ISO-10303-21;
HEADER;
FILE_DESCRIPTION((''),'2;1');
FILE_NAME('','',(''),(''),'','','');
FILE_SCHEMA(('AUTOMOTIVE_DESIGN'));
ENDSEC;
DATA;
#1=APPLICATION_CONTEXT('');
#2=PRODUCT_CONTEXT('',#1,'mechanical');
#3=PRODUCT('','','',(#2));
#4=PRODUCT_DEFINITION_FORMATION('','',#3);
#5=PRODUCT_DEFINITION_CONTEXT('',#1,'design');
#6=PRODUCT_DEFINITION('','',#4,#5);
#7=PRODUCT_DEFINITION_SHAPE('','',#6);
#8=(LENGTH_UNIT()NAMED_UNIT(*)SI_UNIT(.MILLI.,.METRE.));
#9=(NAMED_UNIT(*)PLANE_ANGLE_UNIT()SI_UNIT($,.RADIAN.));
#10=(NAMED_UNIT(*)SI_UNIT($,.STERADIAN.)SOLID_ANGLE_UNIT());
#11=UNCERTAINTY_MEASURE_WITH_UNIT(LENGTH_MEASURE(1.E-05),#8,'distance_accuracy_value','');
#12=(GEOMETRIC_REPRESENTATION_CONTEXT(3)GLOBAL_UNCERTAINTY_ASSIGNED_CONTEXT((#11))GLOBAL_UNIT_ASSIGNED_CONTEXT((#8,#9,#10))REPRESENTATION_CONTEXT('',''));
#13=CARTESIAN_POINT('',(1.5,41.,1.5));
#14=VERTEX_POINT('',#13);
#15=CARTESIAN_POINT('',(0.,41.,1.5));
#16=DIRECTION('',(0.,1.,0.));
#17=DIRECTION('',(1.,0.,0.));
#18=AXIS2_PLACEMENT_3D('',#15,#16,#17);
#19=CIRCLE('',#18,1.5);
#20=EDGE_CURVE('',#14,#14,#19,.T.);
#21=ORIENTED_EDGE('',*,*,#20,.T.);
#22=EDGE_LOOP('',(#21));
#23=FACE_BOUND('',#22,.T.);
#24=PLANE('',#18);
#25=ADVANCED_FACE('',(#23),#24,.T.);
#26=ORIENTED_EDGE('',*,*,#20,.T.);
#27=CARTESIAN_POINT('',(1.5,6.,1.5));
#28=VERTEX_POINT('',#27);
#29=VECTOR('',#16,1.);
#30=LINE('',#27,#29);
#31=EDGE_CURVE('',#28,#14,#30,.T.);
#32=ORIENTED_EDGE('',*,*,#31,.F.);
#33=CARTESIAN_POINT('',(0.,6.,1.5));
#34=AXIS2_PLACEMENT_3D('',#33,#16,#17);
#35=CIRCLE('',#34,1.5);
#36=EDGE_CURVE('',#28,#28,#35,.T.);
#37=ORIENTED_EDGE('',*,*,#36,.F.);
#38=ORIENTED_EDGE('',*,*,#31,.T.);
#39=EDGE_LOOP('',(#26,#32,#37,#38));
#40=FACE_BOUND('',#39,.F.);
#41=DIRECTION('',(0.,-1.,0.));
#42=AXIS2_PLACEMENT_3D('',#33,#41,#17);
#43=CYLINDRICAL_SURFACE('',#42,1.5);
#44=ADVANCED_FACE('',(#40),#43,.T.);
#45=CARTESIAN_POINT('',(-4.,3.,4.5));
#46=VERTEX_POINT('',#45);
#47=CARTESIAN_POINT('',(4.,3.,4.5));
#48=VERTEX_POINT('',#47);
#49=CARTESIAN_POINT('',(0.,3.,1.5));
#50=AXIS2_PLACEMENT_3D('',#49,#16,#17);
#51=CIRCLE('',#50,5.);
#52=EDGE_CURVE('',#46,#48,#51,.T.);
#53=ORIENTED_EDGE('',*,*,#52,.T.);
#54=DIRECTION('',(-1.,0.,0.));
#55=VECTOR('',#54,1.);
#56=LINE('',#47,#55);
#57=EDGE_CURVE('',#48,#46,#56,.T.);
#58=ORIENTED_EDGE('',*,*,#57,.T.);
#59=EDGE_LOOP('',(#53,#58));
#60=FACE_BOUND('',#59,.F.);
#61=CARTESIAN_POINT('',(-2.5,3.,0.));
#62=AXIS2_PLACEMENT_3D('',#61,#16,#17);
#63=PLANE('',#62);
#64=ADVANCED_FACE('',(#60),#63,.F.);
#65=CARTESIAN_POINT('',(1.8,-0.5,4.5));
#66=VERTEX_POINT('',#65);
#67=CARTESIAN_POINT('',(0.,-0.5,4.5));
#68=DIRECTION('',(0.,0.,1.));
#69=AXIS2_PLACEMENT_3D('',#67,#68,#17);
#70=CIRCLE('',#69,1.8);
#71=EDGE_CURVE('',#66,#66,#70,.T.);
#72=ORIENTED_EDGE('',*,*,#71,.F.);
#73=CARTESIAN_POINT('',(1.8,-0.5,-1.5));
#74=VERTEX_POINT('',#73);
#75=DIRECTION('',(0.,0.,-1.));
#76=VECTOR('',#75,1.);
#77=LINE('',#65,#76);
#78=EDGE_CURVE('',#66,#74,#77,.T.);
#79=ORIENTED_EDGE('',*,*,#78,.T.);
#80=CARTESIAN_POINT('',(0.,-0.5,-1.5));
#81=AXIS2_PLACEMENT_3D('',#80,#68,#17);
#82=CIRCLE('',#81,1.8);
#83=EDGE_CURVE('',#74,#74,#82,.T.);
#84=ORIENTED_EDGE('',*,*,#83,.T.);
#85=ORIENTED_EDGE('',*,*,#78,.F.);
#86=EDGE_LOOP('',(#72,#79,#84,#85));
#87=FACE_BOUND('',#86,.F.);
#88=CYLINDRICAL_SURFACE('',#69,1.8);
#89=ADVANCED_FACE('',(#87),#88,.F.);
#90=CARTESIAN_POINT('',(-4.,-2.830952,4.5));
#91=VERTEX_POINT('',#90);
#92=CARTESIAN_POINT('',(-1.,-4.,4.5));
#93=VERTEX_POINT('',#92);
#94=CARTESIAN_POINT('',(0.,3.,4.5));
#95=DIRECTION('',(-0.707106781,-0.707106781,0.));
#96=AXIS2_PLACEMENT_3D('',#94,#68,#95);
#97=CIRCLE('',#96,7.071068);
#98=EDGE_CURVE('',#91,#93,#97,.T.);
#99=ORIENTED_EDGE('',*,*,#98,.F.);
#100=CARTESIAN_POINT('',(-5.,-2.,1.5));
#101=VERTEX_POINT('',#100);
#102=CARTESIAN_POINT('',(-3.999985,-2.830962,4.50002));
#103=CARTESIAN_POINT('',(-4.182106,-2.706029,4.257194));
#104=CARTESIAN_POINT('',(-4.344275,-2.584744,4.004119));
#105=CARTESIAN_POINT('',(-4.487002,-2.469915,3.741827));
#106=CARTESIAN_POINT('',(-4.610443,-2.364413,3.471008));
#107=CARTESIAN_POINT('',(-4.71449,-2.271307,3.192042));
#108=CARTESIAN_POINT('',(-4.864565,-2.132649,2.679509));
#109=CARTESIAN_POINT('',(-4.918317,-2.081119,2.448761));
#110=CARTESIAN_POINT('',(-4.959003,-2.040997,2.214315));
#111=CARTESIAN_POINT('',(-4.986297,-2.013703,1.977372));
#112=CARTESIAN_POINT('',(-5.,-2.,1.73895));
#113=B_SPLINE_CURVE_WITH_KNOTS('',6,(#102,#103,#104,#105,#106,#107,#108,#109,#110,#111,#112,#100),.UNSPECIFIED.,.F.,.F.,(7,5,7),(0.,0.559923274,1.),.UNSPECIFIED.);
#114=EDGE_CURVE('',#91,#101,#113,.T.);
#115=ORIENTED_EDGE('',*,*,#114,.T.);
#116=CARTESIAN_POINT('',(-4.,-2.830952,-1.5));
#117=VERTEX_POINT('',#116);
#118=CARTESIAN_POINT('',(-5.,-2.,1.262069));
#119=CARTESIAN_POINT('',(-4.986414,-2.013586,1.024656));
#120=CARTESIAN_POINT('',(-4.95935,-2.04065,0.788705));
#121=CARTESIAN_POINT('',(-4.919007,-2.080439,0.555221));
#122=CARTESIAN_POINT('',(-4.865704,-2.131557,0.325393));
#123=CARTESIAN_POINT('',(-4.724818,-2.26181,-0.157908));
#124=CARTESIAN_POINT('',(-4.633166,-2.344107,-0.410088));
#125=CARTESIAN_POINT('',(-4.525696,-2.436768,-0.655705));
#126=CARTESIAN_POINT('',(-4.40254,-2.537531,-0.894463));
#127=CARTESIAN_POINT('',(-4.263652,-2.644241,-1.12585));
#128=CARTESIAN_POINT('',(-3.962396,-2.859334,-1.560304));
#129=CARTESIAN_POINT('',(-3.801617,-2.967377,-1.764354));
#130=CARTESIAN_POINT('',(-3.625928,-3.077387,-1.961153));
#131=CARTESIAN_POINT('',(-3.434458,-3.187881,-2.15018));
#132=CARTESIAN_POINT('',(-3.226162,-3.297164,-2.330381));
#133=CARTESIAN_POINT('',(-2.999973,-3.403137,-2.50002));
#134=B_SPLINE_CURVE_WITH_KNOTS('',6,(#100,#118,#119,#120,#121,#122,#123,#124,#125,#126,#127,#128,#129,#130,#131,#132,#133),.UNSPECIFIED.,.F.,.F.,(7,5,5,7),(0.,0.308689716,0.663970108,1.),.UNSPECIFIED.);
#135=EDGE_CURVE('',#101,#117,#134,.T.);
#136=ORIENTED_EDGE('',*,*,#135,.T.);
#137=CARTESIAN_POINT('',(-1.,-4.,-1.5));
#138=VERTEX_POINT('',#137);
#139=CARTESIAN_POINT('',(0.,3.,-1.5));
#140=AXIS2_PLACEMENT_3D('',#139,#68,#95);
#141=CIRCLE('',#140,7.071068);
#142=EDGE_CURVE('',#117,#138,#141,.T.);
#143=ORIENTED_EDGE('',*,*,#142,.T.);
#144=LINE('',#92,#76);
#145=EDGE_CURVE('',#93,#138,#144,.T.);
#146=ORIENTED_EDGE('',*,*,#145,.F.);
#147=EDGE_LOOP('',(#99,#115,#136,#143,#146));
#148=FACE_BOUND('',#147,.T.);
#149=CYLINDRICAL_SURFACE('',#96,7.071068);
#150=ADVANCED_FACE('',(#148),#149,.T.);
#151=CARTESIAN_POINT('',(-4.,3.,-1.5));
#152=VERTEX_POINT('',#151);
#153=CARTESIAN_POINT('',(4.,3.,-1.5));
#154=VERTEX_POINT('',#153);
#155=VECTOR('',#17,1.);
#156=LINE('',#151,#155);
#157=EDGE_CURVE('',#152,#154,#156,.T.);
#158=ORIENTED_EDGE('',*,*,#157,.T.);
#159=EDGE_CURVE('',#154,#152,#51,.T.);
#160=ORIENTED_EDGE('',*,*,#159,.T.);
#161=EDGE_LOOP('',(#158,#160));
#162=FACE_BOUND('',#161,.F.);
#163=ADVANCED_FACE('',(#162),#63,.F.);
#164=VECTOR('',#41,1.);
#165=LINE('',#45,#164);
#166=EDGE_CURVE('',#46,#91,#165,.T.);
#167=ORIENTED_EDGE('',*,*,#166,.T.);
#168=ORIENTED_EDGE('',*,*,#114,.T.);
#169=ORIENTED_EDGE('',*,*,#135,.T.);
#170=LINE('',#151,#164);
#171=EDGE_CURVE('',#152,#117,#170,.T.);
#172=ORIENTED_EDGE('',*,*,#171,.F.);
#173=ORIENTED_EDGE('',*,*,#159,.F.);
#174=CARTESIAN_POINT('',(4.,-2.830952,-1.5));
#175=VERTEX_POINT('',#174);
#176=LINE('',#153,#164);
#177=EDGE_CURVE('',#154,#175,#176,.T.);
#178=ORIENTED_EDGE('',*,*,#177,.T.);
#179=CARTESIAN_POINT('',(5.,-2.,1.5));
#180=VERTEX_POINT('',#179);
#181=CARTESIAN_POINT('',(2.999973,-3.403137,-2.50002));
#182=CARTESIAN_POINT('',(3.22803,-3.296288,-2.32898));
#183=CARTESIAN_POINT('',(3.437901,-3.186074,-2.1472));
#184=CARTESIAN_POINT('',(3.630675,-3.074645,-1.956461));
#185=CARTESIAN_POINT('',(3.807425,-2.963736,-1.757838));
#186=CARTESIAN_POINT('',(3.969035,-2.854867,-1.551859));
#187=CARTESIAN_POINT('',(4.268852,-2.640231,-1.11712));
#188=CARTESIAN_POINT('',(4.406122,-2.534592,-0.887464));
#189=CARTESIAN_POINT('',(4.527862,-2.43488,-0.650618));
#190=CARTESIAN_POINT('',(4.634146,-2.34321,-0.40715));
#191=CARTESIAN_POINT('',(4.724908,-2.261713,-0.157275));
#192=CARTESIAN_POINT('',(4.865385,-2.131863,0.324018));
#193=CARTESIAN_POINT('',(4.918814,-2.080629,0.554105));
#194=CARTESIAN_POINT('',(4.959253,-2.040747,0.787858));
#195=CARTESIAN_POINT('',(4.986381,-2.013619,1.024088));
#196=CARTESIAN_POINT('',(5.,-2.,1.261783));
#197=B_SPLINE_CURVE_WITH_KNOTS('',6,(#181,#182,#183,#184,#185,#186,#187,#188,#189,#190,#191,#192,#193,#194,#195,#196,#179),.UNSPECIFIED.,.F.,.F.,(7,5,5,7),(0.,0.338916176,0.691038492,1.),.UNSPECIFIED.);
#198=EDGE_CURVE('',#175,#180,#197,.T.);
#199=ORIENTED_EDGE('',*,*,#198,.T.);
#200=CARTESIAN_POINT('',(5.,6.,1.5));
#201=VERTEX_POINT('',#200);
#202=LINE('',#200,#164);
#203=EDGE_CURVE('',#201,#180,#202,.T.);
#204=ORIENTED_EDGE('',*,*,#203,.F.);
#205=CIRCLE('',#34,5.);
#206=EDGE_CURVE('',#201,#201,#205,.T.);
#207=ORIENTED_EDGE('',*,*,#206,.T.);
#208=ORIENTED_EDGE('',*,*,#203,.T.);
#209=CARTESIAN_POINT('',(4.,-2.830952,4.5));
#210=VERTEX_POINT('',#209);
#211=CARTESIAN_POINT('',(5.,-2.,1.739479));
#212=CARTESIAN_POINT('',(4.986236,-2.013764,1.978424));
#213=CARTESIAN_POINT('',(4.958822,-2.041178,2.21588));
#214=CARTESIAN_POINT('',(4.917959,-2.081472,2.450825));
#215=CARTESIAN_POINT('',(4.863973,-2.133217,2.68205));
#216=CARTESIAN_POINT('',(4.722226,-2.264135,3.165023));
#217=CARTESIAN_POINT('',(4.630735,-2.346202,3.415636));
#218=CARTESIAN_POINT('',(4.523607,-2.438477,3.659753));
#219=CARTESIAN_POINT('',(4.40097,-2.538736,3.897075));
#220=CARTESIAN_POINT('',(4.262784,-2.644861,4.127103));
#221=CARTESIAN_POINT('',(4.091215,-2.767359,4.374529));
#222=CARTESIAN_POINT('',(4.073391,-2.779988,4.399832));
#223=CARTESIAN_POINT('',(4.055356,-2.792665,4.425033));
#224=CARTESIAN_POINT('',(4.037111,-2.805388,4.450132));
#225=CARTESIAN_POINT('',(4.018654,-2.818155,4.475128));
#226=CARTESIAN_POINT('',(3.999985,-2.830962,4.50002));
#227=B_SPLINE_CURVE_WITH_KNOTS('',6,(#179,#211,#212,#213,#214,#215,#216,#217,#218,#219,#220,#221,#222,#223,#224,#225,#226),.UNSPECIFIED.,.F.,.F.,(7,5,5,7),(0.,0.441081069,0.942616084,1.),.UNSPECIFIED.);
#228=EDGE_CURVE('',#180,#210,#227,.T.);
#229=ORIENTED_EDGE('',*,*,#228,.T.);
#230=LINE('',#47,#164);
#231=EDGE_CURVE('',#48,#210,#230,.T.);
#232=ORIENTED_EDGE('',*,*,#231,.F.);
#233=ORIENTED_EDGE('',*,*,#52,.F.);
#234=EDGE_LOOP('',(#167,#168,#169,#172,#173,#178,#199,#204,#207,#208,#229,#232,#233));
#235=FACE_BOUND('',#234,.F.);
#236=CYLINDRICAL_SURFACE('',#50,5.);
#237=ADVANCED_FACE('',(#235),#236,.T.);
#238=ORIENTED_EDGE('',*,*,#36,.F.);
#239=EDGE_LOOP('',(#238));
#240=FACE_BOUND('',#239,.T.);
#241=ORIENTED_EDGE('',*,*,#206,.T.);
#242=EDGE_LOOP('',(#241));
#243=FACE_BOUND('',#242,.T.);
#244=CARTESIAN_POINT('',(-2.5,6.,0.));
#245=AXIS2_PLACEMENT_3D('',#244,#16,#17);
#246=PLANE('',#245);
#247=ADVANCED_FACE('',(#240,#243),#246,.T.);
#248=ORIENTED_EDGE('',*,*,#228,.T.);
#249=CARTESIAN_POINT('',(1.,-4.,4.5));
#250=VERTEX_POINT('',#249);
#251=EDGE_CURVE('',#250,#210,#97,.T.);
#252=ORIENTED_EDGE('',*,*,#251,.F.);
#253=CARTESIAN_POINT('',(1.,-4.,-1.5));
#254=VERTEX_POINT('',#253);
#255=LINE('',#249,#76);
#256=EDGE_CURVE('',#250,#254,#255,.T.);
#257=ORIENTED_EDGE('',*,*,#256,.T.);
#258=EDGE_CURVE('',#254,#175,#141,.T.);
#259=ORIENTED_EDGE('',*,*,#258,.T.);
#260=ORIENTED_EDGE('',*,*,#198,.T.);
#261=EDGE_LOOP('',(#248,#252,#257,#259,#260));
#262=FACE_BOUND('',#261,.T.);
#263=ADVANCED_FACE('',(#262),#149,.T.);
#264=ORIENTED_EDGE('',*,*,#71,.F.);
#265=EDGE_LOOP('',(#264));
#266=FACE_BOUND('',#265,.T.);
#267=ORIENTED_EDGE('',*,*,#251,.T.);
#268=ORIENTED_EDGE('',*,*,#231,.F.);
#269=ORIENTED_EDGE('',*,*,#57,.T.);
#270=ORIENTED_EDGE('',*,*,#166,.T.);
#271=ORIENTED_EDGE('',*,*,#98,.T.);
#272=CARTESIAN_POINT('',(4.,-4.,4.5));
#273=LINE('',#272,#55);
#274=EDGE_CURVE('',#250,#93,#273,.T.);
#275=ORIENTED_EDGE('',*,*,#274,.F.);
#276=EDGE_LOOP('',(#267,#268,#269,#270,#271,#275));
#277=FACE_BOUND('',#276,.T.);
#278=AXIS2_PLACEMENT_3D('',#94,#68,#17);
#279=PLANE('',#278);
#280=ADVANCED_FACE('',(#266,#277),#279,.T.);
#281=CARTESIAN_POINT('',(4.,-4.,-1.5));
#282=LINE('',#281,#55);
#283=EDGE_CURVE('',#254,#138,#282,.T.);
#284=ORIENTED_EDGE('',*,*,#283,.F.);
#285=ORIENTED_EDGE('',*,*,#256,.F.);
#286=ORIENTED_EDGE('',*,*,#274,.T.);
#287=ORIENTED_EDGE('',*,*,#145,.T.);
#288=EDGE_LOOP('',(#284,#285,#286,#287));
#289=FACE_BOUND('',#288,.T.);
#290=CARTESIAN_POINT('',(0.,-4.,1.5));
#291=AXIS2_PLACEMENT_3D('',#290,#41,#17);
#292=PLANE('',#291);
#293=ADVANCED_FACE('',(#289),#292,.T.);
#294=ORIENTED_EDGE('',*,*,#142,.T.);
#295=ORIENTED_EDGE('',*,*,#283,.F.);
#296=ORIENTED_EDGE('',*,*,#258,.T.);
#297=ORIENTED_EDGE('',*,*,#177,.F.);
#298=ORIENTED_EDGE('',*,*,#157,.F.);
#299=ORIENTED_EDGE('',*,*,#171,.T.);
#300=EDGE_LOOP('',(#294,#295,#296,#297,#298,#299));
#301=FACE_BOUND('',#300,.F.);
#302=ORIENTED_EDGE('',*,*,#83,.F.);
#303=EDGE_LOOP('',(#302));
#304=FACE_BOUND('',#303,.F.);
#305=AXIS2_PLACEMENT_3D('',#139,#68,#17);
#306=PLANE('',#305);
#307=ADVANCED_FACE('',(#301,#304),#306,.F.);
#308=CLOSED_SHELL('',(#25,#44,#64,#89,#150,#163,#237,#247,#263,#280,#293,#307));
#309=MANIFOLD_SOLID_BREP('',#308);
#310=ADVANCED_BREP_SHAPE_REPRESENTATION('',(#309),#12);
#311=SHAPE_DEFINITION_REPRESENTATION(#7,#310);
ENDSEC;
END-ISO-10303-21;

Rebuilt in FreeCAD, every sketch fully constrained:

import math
import FreeCAD as App
import Part
import Sketcher
Q = App.Units.Quantity

doc = App.newDocument("Part")
body = doc.addObject("PartDesign::Body", "Body")

# Sketch on XZ plane
sketch1 = body.newObject("Sketcher::SketchObject", "Sketch")
sketch1.AttachmentSupport = (doc.getObject("XZ_Plane"), [""])
sketch1.MapMode = "FlatFace"
sketch1.AttachmentOffset = App.Placement(App.Vector(0, 0, -3), App.Rotation())
sketch1.addGeometry(Part.Circle(App.Vector(0, 2, 0), App.Vector(0, 0, 1), 5), False)
sketch1.addConstraint(Sketcher.Constraint("PointOnObject", 0, 3, -2))
sketch1.addConstraint(Sketcher.Constraint("Diameter", 0, Q("10 mm")))
sketch1.addConstraint(Sketcher.Constraint("DistanceY", -1, 1, 0, 3, Q("1.5 mm")))
pad1 = body.newObject("PartDesign::Pad", "Pad")
pad1.Profile = sketch1
pad1.Length = 3
pad1.Reversed = True

# Sketch on XZ plane
sketch2 = body.newObject("Sketcher::SketchObject", "Sketch001")
sketch2.AttachmentSupport = (doc.getObject("XZ_Plane"), [""])
sketch2.MapMode = "FlatFace"
sketch2.AttachmentOffset = App.Placement(App.Vector(0, 0, -6), App.Rotation())
sketch2.addGeometry(Part.Circle(App.Vector(0, 1.5, 0), App.Vector(0, 0, 1), 1.5), False)
sketch2.addConstraint(Sketcher.Constraint("PointOnObject", 0, 3, -2))
sketch2.addConstraint(Sketcher.Constraint("Diameter", 0, Q("3 mm")))
sketch2.addConstraint(Sketcher.Constraint("DistanceY", -1, 1, 0, 3, Q("1.5 mm")))
pad2 = body.newObject("PartDesign::Pad", "Pad001")
pad2.Profile = sketch2
pad2.Length = 35
pad2.Reversed = True

# Sketch on XZ plane
sketch3 = body.newObject("Sketcher::SketchObject", "Sketch002")
sketch3.AttachmentSupport = (doc.getObject("XZ_Plane"), [""])
sketch3.MapMode = "FlatFace"
sketch3.AttachmentOffset = App.Placement(App.Vector(0, 0, -3), App.Rotation())
sketch3.addGeometry(Part.ArcOfCircle(Part.Circle(App.Vector(0, 2, 0), App.Vector(0, 0, 1), 5), math.radians(-37), math.radians(37)), False)
sketch3.addGeometry(Part.LineSegment(App.Vector(4, 4, 0), App.Vector(-4, 4, 0)), False)
sketch3.addGeometry(Part.ArcOfCircle(Part.Circle(App.Vector(0, 2, 0), App.Vector(0, 0, 1), 5), math.radians(143), math.radians(217)), False)
sketch3.addGeometry(Part.LineSegment(App.Vector(-4, -2, 0), App.Vector(4, -2, 0)), False)
sketch3.addConstraint(Sketcher.Constraint("Coincident", 0, 2, 1, 1))
sketch3.addConstraint(Sketcher.Constraint("Coincident", 1, 2, 2, 1))
sketch3.addConstraint(Sketcher.Constraint("Coincident", 2, 2, 3, 1))
sketch3.addConstraint(Sketcher.Constraint("Coincident", 3, 2, 0, 1))
sketch3.addConstraint(Sketcher.Constraint("Horizontal", 1))
sketch3.addConstraint(Sketcher.Constraint("Horizontal", 3))
sketch3.addConstraint(Sketcher.Constraint("Coincident", 2, 3, 0, 3))
sketch3.addConstraint(Sketcher.Constraint("Equal", 0, 2))
sketch3.addConstraint(Sketcher.Constraint("PointOnObject", 0, 3, -2))
sketch3.addConstraint(Sketcher.Constraint("Vertical", 1, 2, 2, 2))
sketch3.addConstraint(Sketcher.Constraint("Radius", 0, Q("5 mm")))
sketch3.addConstraint(Sketcher.Constraint("DistanceY", 0, 3, 0, 2, Q("3 mm")))
sketch3.addConstraint(Sketcher.Constraint("DistanceY", -1, 1, 0, 3, Q("1.5 mm")))
pad3 = body.newObject("PartDesign::Pad", "Pad002")
pad3.Profile = sketch3
pad3.Length = 7

# Sketch on XY plane
sketch4 = body.newObject("Sketcher::SketchObject", "Sketch003")
sketch4.AttachmentSupport = (doc.getObject("XY_Plane"), [""])
sketch4.MapMode = "FlatFace"
sketch4.AttachmentOffset = App.Placement(App.Vector(0, 0, 4.5), App.Rotation())
sketch4.addGeometry(Part.Circle(App.Vector(0, -0.5, 0), App.Vector(0, 0, 1), 1.8), False)
sketch4.addConstraint(Sketcher.Constraint("PointOnObject", 0, 3, -2))
sketch4.addConstraint(Sketcher.Constraint("Diameter", 0, Q("3.6 mm")))
sketch4.addConstraint(Sketcher.Constraint("DistanceY", 0, 3, -1, 1, Q("0.5 mm")))
pocket1 = body.newObject("PartDesign::Pocket", "Pocket")
pocket1.Profile = sketch4
pocket1.Type = "ThroughAll"

# Sketch on XY plane
sketch5 = body.newObject("Sketcher::SketchObject", "Sketch004")
sketch5.AttachmentSupport = (doc.getObject("XY_Plane"), [""])
sketch5.MapMode = "FlatFace"
sketch5.AttachmentOffset = App.Placement(App.Vector(0, 0, 4.5), App.Rotation())
sketch5.addGeometry(Part.ArcOfCircle(Part.Circle(App.Vector(0, 3, 0), App.Vector(0, 0, 1), 7.1), math.radians(-82), math.radians(-45)), False)
sketch5.addGeometry(Part.LineSegment(App.Vector(1, -4, 0), App.Vector(5, -4, 0)), False)
sketch5.addGeometry(Part.LineSegment(App.Vector(5, -4, 0), App.Vector(5, -2, 0)), False)
sketch5.addGeometry(Part.ArcOfCircle(Part.Circle(App.Vector(0, 3, 0), App.Vector(0, 0, 1), 7.1), math.radians(-135), math.radians(-98)), False)
sketch5.addGeometry(Part.LineSegment(App.Vector(-5, -2, 0), App.Vector(-5, -4, 0)), False)
sketch5.addGeometry(Part.LineSegment(App.Vector(-5, -4, 0), App.Vector(-1, -4, 0)), False)
sketch5.addConstraint(Sketcher.Constraint("Coincident", 0, 1, 1, 1))
sketch5.addConstraint(Sketcher.Constraint("Coincident", 1, 2, 2, 1))
sketch5.addConstraint(Sketcher.Constraint("Coincident", 2, 2, 0, 2))
sketch5.addConstraint(Sketcher.Constraint("Coincident", 3, 1, 4, 1))
sketch5.addConstraint(Sketcher.Constraint("Coincident", 4, 2, 5, 1))
sketch5.addConstraint(Sketcher.Constraint("Coincident", 5, 2, 3, 2))
sketch5.addConstraint(Sketcher.Constraint("Horizontal", 1))
sketch5.addConstraint(Sketcher.Constraint("Vertical", 2))
sketch5.addConstraint(Sketcher.Constraint("Vertical", 4))
sketch5.addConstraint(Sketcher.Constraint("Horizontal", 5))
sketch5.addConstraint(Sketcher.Constraint("Coincident", 3, 3, 0, 3))
sketch5.addConstraint(Sketcher.Constraint("Equal", 0, 3))
sketch5.addConstraint(Sketcher.Constraint("Symmetric", 2, 2, 3, 1, -2))
sketch5.addConstraint(Sketcher.Constraint("Horizontal", 1, 2, 4, 2))
sketch5.addConstraint(Sketcher.Constraint("DistanceX", -1, 1, 1, 2, Q("5 mm")))
sketch5.addConstraint(Sketcher.Constraint("DistanceY", 2, 2, 0, 3, Q("5 mm")))
sketch5.addConstraint(Sketcher.Constraint("DistanceX", 1, 1, 1, 2, Q("4 mm")))
sketch5.addConstraint(Sketcher.Constraint("DistanceY", -1, 1, 0, 3, Q("3 mm")))
pocket2 = body.newObject("PartDesign::Pocket", "Pocket001")
pocket2.Profile = sketch5
pocket2.Length = 7

doc.recompute()
